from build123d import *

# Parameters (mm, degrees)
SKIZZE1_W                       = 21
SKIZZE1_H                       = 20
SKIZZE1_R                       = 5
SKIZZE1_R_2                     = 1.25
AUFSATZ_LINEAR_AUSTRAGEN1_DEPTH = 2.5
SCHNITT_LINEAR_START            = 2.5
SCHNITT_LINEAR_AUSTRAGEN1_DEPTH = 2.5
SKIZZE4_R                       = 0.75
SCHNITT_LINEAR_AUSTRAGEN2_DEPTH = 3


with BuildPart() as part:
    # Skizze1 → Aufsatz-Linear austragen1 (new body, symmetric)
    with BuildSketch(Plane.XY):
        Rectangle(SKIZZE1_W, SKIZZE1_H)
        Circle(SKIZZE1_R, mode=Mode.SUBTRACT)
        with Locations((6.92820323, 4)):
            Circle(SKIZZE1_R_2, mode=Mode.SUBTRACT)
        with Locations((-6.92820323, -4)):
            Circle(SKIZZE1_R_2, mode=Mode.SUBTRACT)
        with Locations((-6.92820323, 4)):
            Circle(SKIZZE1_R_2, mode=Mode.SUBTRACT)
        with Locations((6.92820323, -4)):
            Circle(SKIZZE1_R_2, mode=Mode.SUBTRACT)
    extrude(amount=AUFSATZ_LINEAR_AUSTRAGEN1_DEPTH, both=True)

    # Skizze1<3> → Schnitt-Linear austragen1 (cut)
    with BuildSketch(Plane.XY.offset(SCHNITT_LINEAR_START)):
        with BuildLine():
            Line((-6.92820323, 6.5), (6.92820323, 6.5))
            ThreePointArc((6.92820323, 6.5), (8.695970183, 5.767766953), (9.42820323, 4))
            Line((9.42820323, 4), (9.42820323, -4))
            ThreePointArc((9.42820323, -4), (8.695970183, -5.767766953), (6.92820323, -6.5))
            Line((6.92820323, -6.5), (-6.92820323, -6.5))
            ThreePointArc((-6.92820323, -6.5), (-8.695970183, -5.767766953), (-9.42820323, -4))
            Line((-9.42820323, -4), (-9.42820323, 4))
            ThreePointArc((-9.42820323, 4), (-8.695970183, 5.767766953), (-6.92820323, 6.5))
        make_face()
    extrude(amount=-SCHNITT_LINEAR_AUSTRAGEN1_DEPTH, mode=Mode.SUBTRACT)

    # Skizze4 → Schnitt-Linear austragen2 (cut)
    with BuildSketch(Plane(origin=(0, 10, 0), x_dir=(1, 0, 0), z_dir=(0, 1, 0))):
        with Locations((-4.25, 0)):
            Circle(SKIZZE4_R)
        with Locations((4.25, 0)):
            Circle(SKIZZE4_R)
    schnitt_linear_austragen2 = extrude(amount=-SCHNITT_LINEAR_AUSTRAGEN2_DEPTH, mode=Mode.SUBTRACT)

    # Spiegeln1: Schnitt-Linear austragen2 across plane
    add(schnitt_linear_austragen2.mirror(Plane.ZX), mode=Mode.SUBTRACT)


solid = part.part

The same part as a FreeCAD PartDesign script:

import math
import FreeCAD as App
import Part
import Sketcher

V = App.Vector
Q = App.Units.Quantity

doc = App.newDocument("Part")
params = doc.addObject("Spreadsheet::Sheet", "Params")
for row, (alias, value) in enumerate([
    ("sketch1_diameter", "10 mm"),
    ("sketch1_diameter2", "2.5 mm"),
    ("sketch1_width", "21 mm"),
    ("sketch1_height", "20 mm"),
    ("pad1_length", "5 mm"),
    ("sketch2_radius", "2.5 mm"),
    ("sketch2_height", "8 mm"),
    ("pocket1_length", "2.5 mm"),
    ("sketch3_diameter", "1.5 mm"),
    ("pocket2_length", "3 mm"),
], start=1):
    params.set(f"A{row}", alias)
    params.set(f"B{row}", "=" + value)
    params.setAlias(f"B{row}", alias)

body = doc.addObject("PartDesign::Body", "Body")

sketch1 = body.newObject("Sketcher::SketchObject", "Sketch")
sketch1.AttachmentSupport = (doc.getObject("XY_Plane"), [""])
sketch1.MapMode = "FlatFace"
sketch1.addGeometry([
    Part.LineSegment(V(-10.5, 10, 0), V(-10.5, -10, 0)),
    Part.LineSegment(V(-10.5, -10, 0), V(10.5, -10, 0)),
    Part.LineSegment(V(10.5, -10, 0), V(10.5, 10, 0)),
    Part.LineSegment(V(10.5, 10, 0), V(-10.5, 10, 0)),
    Part.Circle(V(-6.9, -4, 0), V(0, 0, 1), 1.2),
    Part.Circle(V(6.9, -4, 0), V(0, 0, 1), 1.2),
    Part.Circle(V(-6.9, 4, 0), V(0, 0, 1), 1.2),
    Part.Circle(V(0, 0, 0), V(0, 0, 1), 5),
    Part.Circle(V(6.9, 4, 0), V(0, 0, 1), 1.2),
], False)
sketch1.addConstraint([
    Sketcher.Constraint("Coincident", 0, 2, 1, 1),
    Sketcher.Constraint("Coincident", 1, 2, 2, 1),
    Sketcher.Constraint("Coincident", 2, 2, 3, 1),
    Sketcher.Constraint("Coincident", 3, 2, 0, 1),
    Sketcher.Constraint("Vertical", 0),
    Sketcher.Constraint("Horizontal", 1),
    Sketcher.Constraint("Vertical", 2),
    Sketcher.Constraint("Horizontal", 3),
    Sketcher.Constraint("Coincident", 7, 3, -1, 1),
    Sketcher.Constraint("Equal", 4, 5),
    Sketcher.Constraint("Equal", 5, 6),
    Sketcher.Constraint("Equal", 6, 8),
    Sketcher.Constraint("Symmetric", 5, 3, 6, 3, -1, 1),
    Sketcher.Constraint("Symmetric", 4, 3, 8, 3, -1, 1),
    Sketcher.Constraint("Symmetric", 0, 2, 2, 2, -1, 1),
    Sketcher.Constraint("Symmetric", 4, 3, 5, 3, -2),
    Sketcher.Constraint("Diameter", 7, Q("10 mm")),
    Sketcher.Constraint("Diameter", 4, Q("2.5 mm")),
    Sketcher.Constraint("DistanceX", 1, 1, 1, 2, Q("21 mm")),
    Sketcher.Constraint("DistanceY", 0, 2, 0, 1, Q("20 mm")),
    Sketcher.Constraint("DistanceY", 4, 3, -1, 1, Q("4 mm")),
    Sketcher.Constraint("DistanceX", 4, 3, -1, 1, Q("6.928203 mm")),
])
sketch1.setExpression("Constraints[16]", "Params.sketch1_diameter")
sketch1.setExpression("Constraints[17]", "Params.sketch1_diameter2")
sketch1.setExpression("Constraints[18]", "Params.sketch1_width")
sketch1.setExpression("Constraints[19]", "Params.sketch1_height")
pad1 = body.newObject("PartDesign::Pad", "Pad")
pad1.Profile = sketch1
pad1.setExpression("Length", "Params.pad1_length")
pad1.Midplane = True

sketch2 = body.newObject("Sketcher::SketchObject", "Sketch001")
sketch2.AttachmentSupport = (doc.getObject("XY_Plane"), [""])
sketch2.MapMode = "FlatFace"
sketch2.AttachmentOffset = App.Placement(V(0, 0, 2.5), App.Rotation())
sketch2.addGeometry([
    Part.LineSegment(V(6.9, 6.5, 0), V(-6.9, 6.5, 0)),
    Part.ArcOfCircle(Part.Circle(V(-6.9, 4, 0), V(0, 0, 1), 2.5), math.radians(90), math.radians(180)),
    Part.LineSegment(V(-9.4, 4, 0), V(-9.4, -4, 0)),
    Part.ArcOfCircle(Part.Circle(V(-6.9, -4, 0), V(0, 0, 1), 2.5), math.radians(180), math.radians(270)),
    Part.LineSegment(V(-6.9, -6.5, 0), V(6.9, -6.5, 0)),
    Part.ArcOfCircle(Part.Circle(V(6.9, -4, 0), V(0, 0, 1), 2.5), math.radians(-90), math.radians(0)),
    Part.LineSegment(V(9.4, -4, 0), V(9.4, 4, 0)),
    Part.ArcOfCircle(Part.Circle(V(6.9, 4, 0), V(0, 0, 1), 2.5), math.radians(0), math.radians(90)),
], False)
sketch2.addConstraint([
    Sketcher.Constraint("Tangent", 0, 2, 1, 1),
    Sketcher.Constraint("Tangent", 1, 2, 2, 1),
    Sketcher.Constraint("Tangent", 2, 2, 3, 1),
    Sketcher.Constraint("Tangent", 3, 2, 4, 1),
    Sketcher.Constraint("Tangent", 4, 2, 5, 1),
    Sketcher.Constraint("Tangent", 5, 2, 6, 1),
    Sketcher.Constraint("Tangent", 6, 2, 7, 1),
    Sketcher.Constraint("Tangent", 7, 2, 0, 1),
    Sketcher.Constraint("Horizontal", 0),
    Sketcher.Constraint("Vertical", 2),
    Sketcher.Constraint("Horizontal", 4),
    Sketcher.Constraint("Vertical", 6),
    Sketcher.Constraint("Equal", 1, 3),
    Sketcher.Constraint("Equal", 3, 5),
    Sketcher.Constraint("Equal", 5, 7),
    Sketcher.Constraint("Symmetric", 1, 3, 5, 3, -1, 1),
    Sketcher.Constraint("Radius", 1, Q("2.5 mm")),
    Sketcher.Constraint("DistanceY", 2, 2, 2, 1, Q("8 mm")),
    Sketcher.Constraint("DistanceX", 0, 2, 0, 1, Q("13.856406 mm")),
])
sketch2.setExpression("Constraints[16]", "Params.sketch2_radius")
sketch2.setExpression("Constraints[17]", "Params.sketch2_height")
pocket1 = body.newObject("PartDesign::Pocket", "Pocket")
pocket1.Profile = sketch2
pocket1.setExpression("Length", "Params.pocket1_length")

sketch3 = body.newObject("Sketcher::SketchObject", "Sketch002")
sketch3.AttachmentSupport = (doc.getObject("XZ_Plane"), [""])
sketch3.MapMode = "FlatFace"
sketch3.AttachmentOffset = App.Placement(V(0, 0, -10), App.Rotation())
sketch3.addGeometry([
    Part.Circle(V(-4.2, 0, 0), V(0, 0, 1), 0.8),
    Part.Circle(V(4.2, 0, 0), V(0, 0, 1), 0.8),
], False)
sketch3.addConstraint([
    Sketcher.Constraint("Equal", 0, 1),
    Sketcher.Constraint("Symmetric", 0, 3, 1, 3, -1, 1),
    Sketcher.Constraint("PointOnObject", 0, 3, -1),
    Sketcher.Constraint("Diameter", 0, Q("1.5 mm")),
    Sketcher.Constraint("DistanceX", 0, 3, 1, 3, Q("8.5 mm")),
])
sketch3.setExpression("Constraints[3]", "Params.sketch3_diameter")
pocket2 = body.newObject("PartDesign::Pocket", "Pocket001")
pocket2.Profile = sketch3
pocket2.setExpression("Length", "Params.pocket2_length")
pocket2.Reversed = True
doc.recompute()

mirrored = body.newObject("PartDesign::Mirrored", "Mirrored")
mirrored.Originals = [pocket2]
mirrored.MirrorPlane = (doc.getObject("XZ_Plane"), [""])
body.Tip = mirrored

doc.recompute()
